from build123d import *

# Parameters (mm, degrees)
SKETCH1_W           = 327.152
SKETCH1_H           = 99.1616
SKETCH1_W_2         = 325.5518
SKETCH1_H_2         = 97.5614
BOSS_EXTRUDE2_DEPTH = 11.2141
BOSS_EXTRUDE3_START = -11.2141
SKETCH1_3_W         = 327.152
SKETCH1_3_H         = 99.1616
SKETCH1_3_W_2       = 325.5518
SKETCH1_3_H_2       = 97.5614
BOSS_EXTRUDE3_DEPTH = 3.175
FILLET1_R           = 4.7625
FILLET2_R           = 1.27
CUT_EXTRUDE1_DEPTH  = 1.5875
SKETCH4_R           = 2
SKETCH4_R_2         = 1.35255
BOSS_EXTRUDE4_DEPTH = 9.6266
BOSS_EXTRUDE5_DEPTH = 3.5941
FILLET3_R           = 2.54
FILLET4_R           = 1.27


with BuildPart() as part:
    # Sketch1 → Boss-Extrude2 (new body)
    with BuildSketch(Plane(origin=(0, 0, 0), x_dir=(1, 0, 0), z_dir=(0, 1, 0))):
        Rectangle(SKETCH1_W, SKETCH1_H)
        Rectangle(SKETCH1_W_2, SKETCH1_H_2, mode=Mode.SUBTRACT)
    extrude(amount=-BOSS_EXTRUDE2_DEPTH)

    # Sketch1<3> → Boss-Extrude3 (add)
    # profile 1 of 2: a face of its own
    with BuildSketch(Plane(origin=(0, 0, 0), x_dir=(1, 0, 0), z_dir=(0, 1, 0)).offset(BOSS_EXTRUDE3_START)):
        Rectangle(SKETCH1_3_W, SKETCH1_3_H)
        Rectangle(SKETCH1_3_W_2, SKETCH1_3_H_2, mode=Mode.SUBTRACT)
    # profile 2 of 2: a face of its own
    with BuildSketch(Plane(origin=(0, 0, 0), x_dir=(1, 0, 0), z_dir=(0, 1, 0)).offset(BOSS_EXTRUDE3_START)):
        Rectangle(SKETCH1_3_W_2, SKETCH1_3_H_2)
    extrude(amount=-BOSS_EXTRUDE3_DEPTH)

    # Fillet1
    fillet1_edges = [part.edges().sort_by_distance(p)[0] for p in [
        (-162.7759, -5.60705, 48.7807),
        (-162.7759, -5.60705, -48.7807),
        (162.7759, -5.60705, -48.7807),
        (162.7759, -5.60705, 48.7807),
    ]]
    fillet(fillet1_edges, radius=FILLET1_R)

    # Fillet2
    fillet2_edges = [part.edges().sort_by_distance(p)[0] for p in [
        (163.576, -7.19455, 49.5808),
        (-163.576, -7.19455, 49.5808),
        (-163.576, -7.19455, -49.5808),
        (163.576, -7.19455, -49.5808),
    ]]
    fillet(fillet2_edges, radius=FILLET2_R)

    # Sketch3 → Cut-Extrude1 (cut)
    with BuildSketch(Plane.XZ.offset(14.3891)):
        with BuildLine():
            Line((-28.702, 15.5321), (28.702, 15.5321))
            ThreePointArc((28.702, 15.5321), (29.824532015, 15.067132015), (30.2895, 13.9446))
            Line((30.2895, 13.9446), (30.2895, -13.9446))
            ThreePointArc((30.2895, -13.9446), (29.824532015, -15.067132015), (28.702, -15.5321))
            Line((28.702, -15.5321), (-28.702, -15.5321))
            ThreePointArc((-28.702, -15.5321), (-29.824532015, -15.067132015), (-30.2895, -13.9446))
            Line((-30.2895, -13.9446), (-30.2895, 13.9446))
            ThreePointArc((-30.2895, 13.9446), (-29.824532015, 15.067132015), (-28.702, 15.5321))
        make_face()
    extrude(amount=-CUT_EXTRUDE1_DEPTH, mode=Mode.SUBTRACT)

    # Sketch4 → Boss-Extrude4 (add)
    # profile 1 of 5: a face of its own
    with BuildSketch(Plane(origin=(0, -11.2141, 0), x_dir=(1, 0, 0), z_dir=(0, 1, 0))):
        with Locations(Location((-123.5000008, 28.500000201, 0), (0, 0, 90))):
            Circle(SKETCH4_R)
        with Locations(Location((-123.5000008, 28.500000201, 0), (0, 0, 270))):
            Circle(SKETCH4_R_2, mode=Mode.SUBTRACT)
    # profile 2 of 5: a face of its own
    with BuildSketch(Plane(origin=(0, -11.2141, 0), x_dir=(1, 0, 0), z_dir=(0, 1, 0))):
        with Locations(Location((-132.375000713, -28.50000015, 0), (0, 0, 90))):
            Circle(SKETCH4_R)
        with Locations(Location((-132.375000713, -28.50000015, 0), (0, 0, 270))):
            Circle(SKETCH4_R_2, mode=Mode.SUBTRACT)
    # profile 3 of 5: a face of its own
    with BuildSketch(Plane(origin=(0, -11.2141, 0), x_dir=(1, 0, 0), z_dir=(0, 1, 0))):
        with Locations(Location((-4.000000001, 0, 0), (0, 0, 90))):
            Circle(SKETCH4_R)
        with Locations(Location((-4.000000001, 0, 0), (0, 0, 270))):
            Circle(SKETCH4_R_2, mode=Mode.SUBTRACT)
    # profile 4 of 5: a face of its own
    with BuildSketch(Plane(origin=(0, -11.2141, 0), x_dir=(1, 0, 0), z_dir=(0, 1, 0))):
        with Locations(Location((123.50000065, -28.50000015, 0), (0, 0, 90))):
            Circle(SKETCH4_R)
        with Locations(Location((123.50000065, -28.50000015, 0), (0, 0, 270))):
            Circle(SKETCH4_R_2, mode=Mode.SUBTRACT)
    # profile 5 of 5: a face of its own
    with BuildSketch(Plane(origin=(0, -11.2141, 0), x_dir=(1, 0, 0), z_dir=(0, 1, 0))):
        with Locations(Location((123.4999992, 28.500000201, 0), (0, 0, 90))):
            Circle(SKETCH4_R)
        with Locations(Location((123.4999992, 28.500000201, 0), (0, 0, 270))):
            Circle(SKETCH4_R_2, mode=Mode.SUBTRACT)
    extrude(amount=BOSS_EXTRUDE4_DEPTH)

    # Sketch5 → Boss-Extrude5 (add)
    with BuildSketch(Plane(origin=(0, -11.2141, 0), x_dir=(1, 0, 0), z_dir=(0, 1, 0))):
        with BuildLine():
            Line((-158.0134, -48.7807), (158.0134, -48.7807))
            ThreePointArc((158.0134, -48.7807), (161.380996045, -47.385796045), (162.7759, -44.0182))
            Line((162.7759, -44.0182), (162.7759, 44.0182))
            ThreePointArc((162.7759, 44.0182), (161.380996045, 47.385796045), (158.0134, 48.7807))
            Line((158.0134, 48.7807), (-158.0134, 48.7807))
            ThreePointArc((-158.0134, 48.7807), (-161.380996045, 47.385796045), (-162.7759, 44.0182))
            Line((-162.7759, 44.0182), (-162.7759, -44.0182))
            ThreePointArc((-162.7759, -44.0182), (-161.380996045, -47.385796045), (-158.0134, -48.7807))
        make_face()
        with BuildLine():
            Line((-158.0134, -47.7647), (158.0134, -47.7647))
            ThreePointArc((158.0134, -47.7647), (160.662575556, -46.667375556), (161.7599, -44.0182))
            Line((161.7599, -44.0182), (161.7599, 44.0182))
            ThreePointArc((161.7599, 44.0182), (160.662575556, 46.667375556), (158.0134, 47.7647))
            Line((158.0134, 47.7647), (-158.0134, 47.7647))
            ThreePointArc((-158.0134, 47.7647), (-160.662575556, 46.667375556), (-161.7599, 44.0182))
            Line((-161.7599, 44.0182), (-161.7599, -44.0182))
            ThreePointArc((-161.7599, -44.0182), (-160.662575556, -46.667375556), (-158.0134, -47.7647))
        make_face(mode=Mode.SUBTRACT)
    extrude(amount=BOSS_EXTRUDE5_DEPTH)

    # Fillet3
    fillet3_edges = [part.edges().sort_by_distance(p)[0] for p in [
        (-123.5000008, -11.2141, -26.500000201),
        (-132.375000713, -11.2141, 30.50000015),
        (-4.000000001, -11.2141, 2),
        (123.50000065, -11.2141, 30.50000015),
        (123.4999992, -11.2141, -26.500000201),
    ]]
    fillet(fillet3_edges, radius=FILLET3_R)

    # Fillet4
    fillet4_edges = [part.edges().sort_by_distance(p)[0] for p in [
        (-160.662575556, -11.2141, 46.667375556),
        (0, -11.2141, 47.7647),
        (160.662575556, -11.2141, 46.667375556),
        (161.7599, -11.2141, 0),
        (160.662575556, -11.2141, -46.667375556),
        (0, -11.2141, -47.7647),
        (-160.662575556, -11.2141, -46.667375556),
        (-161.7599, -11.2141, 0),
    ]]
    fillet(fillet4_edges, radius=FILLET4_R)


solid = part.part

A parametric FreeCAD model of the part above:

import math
import FreeCAD as App
import Part
import Sketcher
from FreeCAD import Vector
Q = App.Units.Quantity


def edges_at(feature, points):
    """Names of the edges that pass closest to the given points."""
    edges = feature.Shape.Edges
    near = lambda p: min(range(len(edges)), key=lambda i: edges[i].distToShape(Part.Vertex(*p))[0])
    return sorted({f"Edge{near(p) + 1}" for p in points})

doc = App.newDocument("Part")
params = doc.addObject("Spreadsheet::Sheet", "Params")
for row, (alias, value) in enumerate([
    ("sketch1_width", "12.88 in"),
    ("sketch1_width2", "12.817 in"),
    ("sketch1_height", "3.904 in"),
    ("sketch1_height2", "3.841 in"),
    ("pad1_length", "0.4415 in"),
    ("sketch2_width", "12.88 in"),
    ("sketch2_height", "3.904 in"),
    ("pad2_length", "0.125 in"),
    ("fillet_radius", "0.1875 in"),
    ("fillet2_radius", "0.05 in"),
    ("sketch3_radius", "0.0625 in"),
    ("sketch3_width", "2.26 in"),
    ("sketch3_height", "1.098 in"),
    ("pocket1_length", "0.0625 in"),
    ("pad3_length", "0.379 in"),
    ("sketch5_radius", "0.1875 in"),
    ("sketch5_width", "12.442 in"),
    ("sketch5_height", "3.466 in"),
    ("pad4_length", "0.1415 in"),
    ("fillet3_radius", "0.1 in"),
    ("fillet4_radius", "0.05 in"),
], start=1):
    params.set(f"A{row}", alias)
    params.set(f"B{row}", "=" + value)
    params.setAlias(f"B{row}", alias)

body = doc.addObject("PartDesign::Body", "Body")

# Sketch on XZ plane
sketch1 = body.newObject("Sketcher::SketchObject", "Sketch")
sketch1.AttachmentSupport = (doc.getObject("XZ_Plane"), [""])
sketch1.MapMode = "FlatFace"
sketch1.addGeometry([
    Part.LineSegment(Vector(-164, -50, 0), Vector(-164, 50, 0)),  # 0
    Part.LineSegment(Vector(-164, 50, 0), Vector(164, 50, 0)),  # 1
    Part.LineSegment(Vector(164, 50, 0), Vector(164, -50, 0)),  # 2
    Part.LineSegment(Vector(164, -50, 0), Vector(-164, -50, 0)),  # 3
    Part.LineSegment(Vector(163, 49, 0), Vector(-163, 49, 0)),  # 4
    Part.LineSegment(Vector(-163, 49, 0), Vector(-163, -49, 0)),  # 5
    Part.LineSegment(Vector(-163, -49, 0), Vector(163, -49, 0)),  # 6
    Part.LineSegment(Vector(163, -49, 0), Vector(163, 49, 0)),  # 7
], False)
sketch1.addConstraint([
    Sketcher.Constraint("Coincident", 0, 2, 1, 1),
    Sketcher.Constraint("Coincident", 1, 2, 2, 1),
    Sketcher.Constraint("Coincident", 2, 2, 3, 1),
    Sketcher.Constraint("Coincident", 3, 2, 0, 1),
    Sketcher.Constraint("Coincident", 4, 2, 5, 1),
    Sketcher.Constraint("Coincident", 5, 2, 6, 1),
    Sketcher.Constraint("Coincident", 6, 2, 7, 1),
    Sketcher.Constraint("Coincident", 7, 2, 4, 1),
    Sketcher.Constraint("Vertical", 0),
    Sketcher.Constraint("Horizontal", 1),
    Sketcher.Constraint("Vertical", 2),
    Sketcher.Constraint("Horizontal", 3),
    Sketcher.Constraint("Horizontal", 4),
    Sketcher.Constraint("Vertical", 5),
    Sketcher.Constraint("Horizontal", 6),
    Sketcher.Constraint("Vertical", 7),
    Sketcher.Constraint("Symmetric", 0, 2, 2, 2, -1, 1),
    Sketcher.Constraint("Symmetric", 4, 2, 6, 2, -1, 1),
    Sketcher.Constraint("DistanceX", 1, 1, 1, 2, Q("12.88 in")),
    Sketcher.Constraint("DistanceX", 4, 2, 4, 1, Q("12.817 in")),
    Sketcher.Constraint("DistanceY", 0, 1, 0, 2, Q("3.904 in")),
    Sketcher.Constraint("DistanceY", 5, 2, 5, 1, Q("3.841 in")),
])
sketch1.setExpression("Constraints[18]", "Params.sketch1_width")
sketch1.setExpression("Constraints[19]", "Params.sketch1_width2")
sketch1.setExpression("Constraints[20]", "Params.sketch1_height")
sketch1.setExpression("Constraints[21]", "Params.sketch1_height2")
pad1 = body.newObject("PartDesign::Pad", "Pad")
pad1.Profile = sketch1
pad1.setExpression("Length", "Params.pad1_length")

# Sketch on XZ plane
sketch2 = body.newObject("Sketcher::SketchObject", "Sketch001")
sketch2.AttachmentSupport = (doc.getObject("XZ_Plane"), [""])
sketch2.MapMode = "FlatFace"
sketch2.AttachmentOffset = App.Placement(Vector(0, 0, 0.4415 * 25.4), App.Rotation())
sketch2.addGeometry([
    Part.LineSegment(Vector(-164, -50, 0), Vector(-164, 50, 0)),
    Part.LineSegment(Vector(-164, 50, 0), Vector(164, 50, 0)),
    Part.LineSegment(Vector(164, 50, 0), Vector(164, -50, 0)),
    Part.LineSegment(Vector(164, -50, 0), Vector(-164, -50, 0)),
], False)
sketch2.addConstraint([
    Sketcher.Constraint("Coincident", 0, 2, 1, 1),
    Sketcher.Constraint("Coincident", 1, 2, 2, 1),
    Sketcher.Constraint("Coincident", 2, 2, 3, 1),
    Sketcher.Constraint("Coincident", 3, 2, 0, 1),
    Sketcher.Constraint("Vertical", 0),
    Sketcher.Constraint("Horizontal", 1),
    Sketcher.Constraint("Vertical", 2),
    Sketcher.Constraint("Horizontal", 3),
    Sketcher.Constraint("Symmetric", 0, 2, 2, 2, -1, 1),
    Sketcher.Constraint("DistanceX", 1, 1, 1, 2, Q("12.88 in")),
    Sketcher.Constraint("DistanceY", 0, 1, 0, 2, Q("3.904 in")),
])
sketch2.setExpression("Constraints[9]", "Params.sketch2_width")
sketch2.setExpression("Constraints[10]", "Params.sketch2_height")
pad2 = body.newObject("PartDesign::Pad", "Pad001")
pad2.Profile = sketch2
pad2.setExpression("Length", "Params.pad2_length")
doc.recompute()

fillet = body.newObject("PartDesign::Fillet", "Fillet")
fillet.Base = (pad2, edges_at(pad2, [
    (-162.776, -5.607, 48.781),
    (-162.776, -5.607, -48.781),
    (162.776, -5.607, -48.781),
    (162.776, -5.607, 48.781),
]))
fillet.setExpression("Radius", "Params.fillet_radius")
doc.recompute()

fillet2 = body.newObject("PartDesign::Fillet", "Fillet001")
fillet2.Base = (fillet, edges_at(fillet, [
    (163.576, -7.195, 49.581),
    (-163.576, -7.195, 49.581),
    (-163.576, -7.195, -49.581),
    (163.576, -7.195, -49.581),
]))
fillet2.setExpression("Radius", "Params.fillet2_radius")

# Sketch on XZ plane
sketch3 = body.newObject("Sketcher::SketchObject", "Sketch002")
sketch3.AttachmentSupport = (doc.getObject("XZ_Plane"), [""])
sketch3.MapMode = "FlatFace"
sketch3.AttachmentOffset = App.Placement(Vector(0, 0, 0.5665 * 25.4), App.Rotation())
sketch3.addGeometry([
    Part.LineSegment(Vector(28.7, 15.5, 0), Vector(-28.7, 15.5, 0)),  # 0
    Part.ArcOfCircle(Part.Circle(Vector(-28.7, 13.9, 0), Vector(0, 0, 1), 1.6), math.radians(90), math.radians(180)),  # 1
    Part.LineSegment(Vector(-30.3, 13.9, 0), Vector(-30.3, -13.9, 0)),  # 2
    Part.ArcOfCircle(Part.Circle(Vector(-28.7, -13.9, 0), Vector(0, 0, 1), 1.6), math.radians(180), math.radians(270)),  # 3
    Part.LineSegment(Vector(-28.7, -15.5, 0), Vector(28.7, -15.5, 0)),  # 4
    Part.ArcOfCircle(Part.Circle(Vector(28.7, -13.9, 0), Vector(0, 0, 1), 1.6), math.radians(-90), math.radians(0)),  # 5
    Part.LineSegment(Vector(30.3, -13.9, 0), Vector(30.3, 13.9, 0)),  # 6
    Part.ArcOfCircle(Part.Circle(Vector(28.7, 13.9, 0), Vector(0, 0, 1), 1.6), math.radians(0), math.radians(90)),  # 7
], False)
sketch3.addConstraint([
    Sketcher.Constraint("Tangent", 0, 2, 1, 1),
    Sketcher.Constraint("Tangent", 1, 2, 2, 1),
    Sketcher.Constraint("Tangent", 2, 2, 3, 1),
    Sketcher.Constraint("Tangent", 3, 2, 4, 1),
    Sketcher.Constraint("Tangent", 4, 2, 5, 1),
    Sketcher.Constraint("Tangent", 5, 2, 6, 1),
    Sketcher.Constraint("Tangent", 6, 2, 7, 1),
    Sketcher.Constraint("Tangent", 7, 2, 0, 1),
    Sketcher.Constraint("Horizontal", 0),
    Sketcher.Constraint("Vertical", 2),
    Sketcher.Constraint("Horizontal", 4),
    Sketcher.Constraint("Vertical", 6),
    Sketcher.Constraint("Equal", 1, 3),
    Sketcher.Constraint("Equal", 3, 5),
    Sketcher.Constraint("Equal", 5, 7),
    Sketcher.Constraint("Symmetric", 1, 3, 5, 3, -1, 1),
    Sketcher.Constraint("Radius", 1, Q("0.0625 in")),
    Sketcher.Constraint("DistanceX", 0, 2, 0, 1, Q("2.26 in")),
    Sketcher.Constraint("DistanceY", 2, 2, 2, 1, Q("1.098 in")),
])
sketch3.setExpression("Constraints[16]", "Params.sketch3_radius")
sketch3.setExpression("Constraints[17]", "Params.sketch3_width")
sketch3.setExpression("Constraints[18]", "Params.sketch3_height")
pocket1 = body.newObject("PartDesign::Pocket", "Pocket")
pocket1.Profile = sketch3
pocket1.setExpression("Length", "Params.pocket1_length")

# Sketch on XZ plane
sketch4 = body.newObject("Sketcher::SketchObject", "Sketch003")
sketch4.AttachmentSupport = (doc.getObject("XZ_Plane"), [""])
sketch4.MapMode = "FlatFace"
sketch4.AttachmentOffset = App.Placement(Vector(0, 0, 0.4415 * 25.4), App.Rotation())
sketch4.addGeometry([
    Part.Circle(Vector(-123.5, -28.5, 0), Vector(0, 0, 1), 2),  # 0
    Part.Circle(Vector(-123.5, -28.5, 0), Vector(0, 0, 1), 1.4),  # 1
    Part.Circle(Vector(-132.4, 28.5, 0), Vector(0, 0, 1), 2),  # 2
    Part.Circle(Vector(-132.4, 28.5, 0), Vector(0, 0, 1), 1.4),  # 3
    Part.Circle(Vector(-4, 0, 0), Vector(0, 0, 1), 2),  # 4
    Part.Circle(Vector(-4, 0, 0), Vector(0, 0, 1), 1.4),  # 5
    Part.Circle(Vector(123.5, 28.5, 0), Vector(0, 0, 1), 2),  # 6
    Part.Circle(Vector(123.5, 28.5, 0), Vector(0, 0, 1), 1.4),  # 7
    Part.Circle(Vector(123.5, -28.5, 0), Vector(0, 0, 1), 2),  # 8
    Part.Circle(Vector(123.5, -28.5, 0), Vector(0, 0, 1), 1.4),  # 9
], False)
sketch4.addConstraint([
    Sketcher.Constraint("Coincident", 1, 3, 0, 3),
    Sketcher.Constraint("Coincident", 3, 3, 2, 3),
    Sketcher.Constraint("Coincident", 5, 3, 4, 3),
    Sketcher.Constraint("Coincident", 7, 3, 6, 3),
    Sketcher.Constraint("Coincident", 9, 3, 8, 3),
    Sketcher.Constraint("Equal", 0, 2),
    Sketcher.Constraint("Equal", 1, 3),
    Sketcher.Constraint("Equal", 2, 4),
    Sketcher.Constraint("Equal", 3, 5),
    Sketcher.Constraint("Equal", 4, 6),
    Sketcher.Constraint("Equal", 5, 7),
    Sketcher.Constraint("Equal", 6, 8),
    Sketcher.Constraint("Equal", 7, 9),
    Sketcher.Constraint("Symmetric", 0, 3, 6, 3, -1, 1),
    Sketcher.Constraint("Symmetric", 0, 3, 8, 3, -2),
    Sketcher.Constraint("PointOnObject", 4, 3, -1),
    Sketcher.Constraint("Horizontal", 3, 3, 6, 3),
    Sketcher.Constraint("Diameter", 1, Q("0.1065 in")),
    Sketcher.Constraint("Diameter", 0, 4.0),
    Sketcher.Constraint("DistanceX", 0, 3, -1, 1, 123.500001),
    Sketcher.Constraint("DistanceY", 0, 3, -1, 1, 28.5),
    Sketcher.Constraint("DistanceX", 2, 3, -1, 1, 132.375001),
    Sketcher.Constraint("DistanceX", 4, 3, -1, 1, 4.0),
])
pad3 = body.newObject("PartDesign::Pad", "Pad002")
pad3.Profile = sketch4
pad3.setExpression("Length", "Params.pad3_length")
pad3.Reversed = True

# Sketch on XZ plane
sketch5 = body.newObject("Sketcher::SketchObject", "Sketch004")
sketch5.AttachmentSupport = (doc.getObject("XZ_Plane"), [""])
sketch5.MapMode = "FlatFace"
sketch5.AttachmentOffset = App.Placement(Vector(0, 0, 0.4415 * 25.4), App.Rotation())
sketch5.addGeometry([
    Part.LineSegment(Vector(-158, 48.8, 0), Vector(158, 48.8, 0)),  # 0
    Part.ArcOfCircle(Part.Circle(Vector(158, 44, 0), Vector(0, 0, 1), 4.8), math.radians(0), math.radians(90)),  # 1
    Part.LineSegment(Vector(162.8, 44, 0), Vector(162.8, -44, 0)),  # 2
    Part.ArcOfCircle(Part.Circle(Vector(158, -44, 0), Vector(0, 0, 1), 4.8), math.radians(-90), math.radians(0)),  # 3
    Part.LineSegment(Vector(158, -48.8, 0), Vector(-158, -48.8, 0)),  # 4
    Part.ArcOfCircle(Part.Circle(Vector(-158, -44, 0), Vector(0, 0, 1), 4.8), math.radians(-180), math.radians(-90)),  # 5
    Part.LineSegment(Vector(-162.8, -44, 0), Vector(-162.8, 44, 0)),  # 6
    Part.ArcOfCircle(Part.Circle(Vector(-158, 44, 0), Vector(0, 0, 1), 4.8), math.radians(90), math.radians(180)),  # 7
    Part.LineSegment(Vector(158, 47.8, 0), Vector(-158, 47.8, 0)),  # 8
    Part.ArcOfCircle(Part.Circle(Vector(-158, 44, 0), Vector(0, 0, 1), 3.7), math.radians(90), math.radians(180)),  # 9
    Part.LineSegment(Vector(-161.8, 44, 0), Vector(-161.8, -44, 0)),  # 10
    Part.ArcOfCircle(Part.Circle(Vector(-158, -44, 0), Vector(0, 0, 1), 3.7), math.radians(180), math.radians(270)),  # 11
    Part.LineSegment(Vector(-158, -47.8, 0), Vector(158, -47.8, 0)),  # 12
    Part.ArcOfCircle(Part.Circle(Vector(158, -44, 0), Vector(0, 0, 1), 3.7), math.radians(-90), math.radians(0)),  # 13
    Part.LineSegment(Vector(161.8, -44, 0), Vector(161.8, 44, 0)),  # 14
    Part.ArcOfCircle(Part.Circle(Vector(158, 44, 0), Vector(0, 0, 1), 3.7), math.radians(0), math.radians(90)),  # 15
], False)
sketch5.addConstraint([
    Sketcher.Constraint("Tangent", 0, 2, 1, 2),
    Sketcher.Constraint("Tangent", 1, 1, 2, 1),
    Sketcher.Constraint("Tangent", 2, 2, 3, 2),
    Sketcher.Constraint("Tangent", 3, 1, 4, 1),
    Sketcher.Constraint("Tangent", 4, 2, 5, 2),
    Sketcher.Constraint("Tangent", 5, 1, 6, 1),
    Sketcher.Constraint("Tangent", 6, 2, 7, 2),
    Sketcher.Constraint("Tangent", 7, 1, 0, 1),
    Sketcher.Constraint("Tangent", 8, 2, 9, 1),
    Sketcher.Constraint("Tangent", 9, 2, 10, 1),
    Sketcher.Constraint("Tangent", 10, 2, 11, 1),
    Sketcher.Constraint("Tangent", 11, 2, 12, 1),
    Sketcher.Constraint("Tangent", 12, 2, 13, 1),
    Sketcher.Constraint("Tangent", 13, 2, 14, 1),
    Sketcher.Constraint("Tangent", 14, 2, 15, 1),
    Sketcher.Constraint("Tangent", 15, 2, 8, 1),
    Sketcher.Constraint("Horizontal", 0),
    Sketcher.Constraint("Vertical", 2),
    Sketcher.Constraint("Horizontal", 4),
    Sketcher.Constraint("Vertical", 6),
    Sketcher.Constraint("Horizontal", 8),
    Sketcher.Constraint("Vertical", 10),
    Sketcher.Constraint("Horizontal", 12),
    Sketcher.Constraint("Vertical", 14),
    Sketcher.Constraint("Coincident", 9, 3, 7, 3),
    Sketcher.Constraint("Coincident", 11, 3, 5, 3),
    Sketcher.Constraint("Coincident", 13, 3, 3, 3),
    Sketcher.Constraint("Equal", 1, 3),
    Sketcher.Constraint("Equal", 3, 5),
    Sketcher.Constraint("Equal", 5, 7),
    Sketcher.Constraint("Equal", 13, 15),
    Sketcher.Constraint("Symmetric", 1, 3, 5, 3, -1, 1),
    Sketcher.Constraint("Radius", 1, Q("0.1875 in")),
    Sketcher.Constraint("Radius", 9, Q("0.1475 in")),
    Sketcher.Constraint("DistanceX", 0, 1, 0, 2, Q("12.442 in")),
    Sketcher.Constraint("DistanceY", 2, 2, 2, 1, Q("3.466 in")),
])
sketch5.setExpression("Constraints[32]", "Params.sketch5_radius")
sketch5.setExpression("Constraints[34]", "Params.sketch5_width")
sketch5.setExpression("Constraints[35]", "Params.sketch5_height")
pad4 = body.newObject("PartDesign::Pad", "Pad003")
pad4.Profile = sketch5
pad4.setExpression("Length", "Params.pad4_length")
pad4.Reversed = True
doc.recompute()

fillet3 = body.newObject("PartDesign::Fillet", "Fillet002")
fillet3.Base = (pad4, edges_at(pad4, [
    (-123.5, -11.214, -26.5),
    (-132.375, -11.214, 30.5),
    (-4, -11.214, 2),
    (123.5, -11.214, 30.5),
    (123.5, -11.214, -26.5),
]))
fillet3.setExpression("Radius", "Params.fillet3_radius")
doc.recompute()

fillet4 = body.newObject("PartDesign::Fillet", "Fillet003")
fillet4.Base = (fillet3, edges_at(fillet3, [
    (-160.663, -11.214, 46.667),
    (0, -11.214, 47.765),
    (160.663, -11.214, 46.667),
    (161.76, -11.214, 0),
    (160.663, -11.214, -46.667),
    (0, -11.214, -47.765),
    (-160.663, -11.214, -46.667),
    (-161.76, -11.214, 0),
]))
fillet4.setExpression("Radius", "Params.fillet4_radius")

doc.recompute()
